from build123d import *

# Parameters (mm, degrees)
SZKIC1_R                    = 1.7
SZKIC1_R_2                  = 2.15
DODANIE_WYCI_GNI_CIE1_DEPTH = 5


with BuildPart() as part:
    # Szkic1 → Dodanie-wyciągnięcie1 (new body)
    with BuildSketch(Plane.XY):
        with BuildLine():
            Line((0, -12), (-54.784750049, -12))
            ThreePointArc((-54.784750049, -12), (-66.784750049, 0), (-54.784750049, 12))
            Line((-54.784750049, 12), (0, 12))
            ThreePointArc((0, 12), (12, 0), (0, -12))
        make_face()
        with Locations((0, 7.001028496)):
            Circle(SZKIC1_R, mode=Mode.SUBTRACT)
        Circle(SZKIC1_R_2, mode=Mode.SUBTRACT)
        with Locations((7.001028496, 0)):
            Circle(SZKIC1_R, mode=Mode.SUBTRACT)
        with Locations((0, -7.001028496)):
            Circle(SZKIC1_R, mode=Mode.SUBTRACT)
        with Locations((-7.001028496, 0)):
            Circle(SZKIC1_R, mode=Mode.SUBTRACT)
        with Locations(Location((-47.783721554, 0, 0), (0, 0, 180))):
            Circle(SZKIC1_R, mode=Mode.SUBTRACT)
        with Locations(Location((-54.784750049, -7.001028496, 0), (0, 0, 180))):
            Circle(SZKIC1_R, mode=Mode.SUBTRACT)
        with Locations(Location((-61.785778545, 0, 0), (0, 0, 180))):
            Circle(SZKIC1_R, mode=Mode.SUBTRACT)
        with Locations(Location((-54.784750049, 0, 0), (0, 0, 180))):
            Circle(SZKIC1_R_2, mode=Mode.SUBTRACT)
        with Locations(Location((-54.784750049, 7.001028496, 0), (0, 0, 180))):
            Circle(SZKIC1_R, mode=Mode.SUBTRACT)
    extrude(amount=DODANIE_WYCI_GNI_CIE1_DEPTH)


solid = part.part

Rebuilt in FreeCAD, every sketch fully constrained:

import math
import FreeCAD as App
import Part
import Sketcher
from FreeCAD import Vector
Q = App.Units.Quantity

doc = App.newDocument("Part")
params = doc.addObject("Spreadsheet::Sheet", "Params")
for row, (alias, value) in enumerate([
    ("sketch1_radius", "12 mm"),
    ("sketch1_diameter", "3.4 mm"),
    ("sketch1_diameter2", "4.3 mm"),
    ("pad1_length", "5 mm"),
], start=1):
    params.set(f"A{row}", alias)
    params.set(f"B{row}", "=" + value)
    params.setAlias(f"B{row}", alias)

body = doc.addObject("PartDesign::Body", "Body")

sketch1 = doc.addObject("Sketcher::SketchObject", "Sketch")
body.addObject(sketch1)
sketch1.AttachmentSupport = (doc.XY_Plane, [""])
sketch1.MapMode = "FlatFace"
sketch1.addGeometry(Part.LineSegment(Vector(-54.8, -12, 0), Vector(0, -12, 0)), False)
sketch1.addGeometry(Part.ArcOfCircle(Part.Circle(Vector(0, 0, 0), Vector(0, 0, 1), 12), math.radians(-90), math.radians(90)), False)
sketch1.addGeometry(Part.LineSegment(Vector(0, 12, 0), Vector(-54.8, 12, 0)), False)
sketch1.addGeometry(Part.ArcOfCircle(Part.Circle(Vector(-54.8, 0, 0), Vector(0, 0, 1), 12), math.radians(90), math.radians(270)), False)
sketch1.addGeometry(Part.Circle(Vector(0, -7, 0), Vector(0, 0, 1), 1.7), False)
sketch1.addGeometry(Part.Circle(Vector(-54.8, -7, 0), Vector(0, 0, 1), 1.7), False)
sketch1.addGeometry(Part.Circle(Vector(7, 0, 0), Vector(0, 0, 1), 1.7), False)
sketch1.addGeometry(Part.Circle(Vector(0, 0, 0), Vector(0, 0, 1), 2.1), False)
sketch1.addGeometry(Part.Circle(Vector(-7, 0, 0), Vector(0, 0, 1), 1.7), False)
sketch1.addGeometry(Part.Circle(Vector(0, 7, 0), Vector(0, 0, 1), 1.7), False)
sketch1.addGeometry(Part.Circle(Vector(-47.8, 0, 0), Vector(0, 0, 1), 1.7), False)
sketch1.addGeometry(Part.Circle(Vector(-54.8, 0, 0), Vector(0, 0, 1), 2.1), False)
sketch1.addGeometry(Part.Circle(Vector(-61.8, 0, 0), Vector(0, 0, 1), 1.7), False)
sketch1.addGeometry(Part.Circle(Vector(-54.8, 7, 0), Vector(0, 0, 1), 1.7), False)
sketch1.addConstraint(Sketcher.Constraint("Tangent", 0, 2, 1, 1))
sketch1.addConstraint(Sketcher.Constraint("Tangent", 1, 2, 2, 1))
sketch1.addConstraint(Sketcher.Constraint("Tangent", 2, 2, 3, 1))
sketch1.addConstraint(Sketcher.Constraint("Tangent", 3, 2, 0, 1))
sketch1.addConstraint(Sketcher.Constraint("Horizontal", 0))
sketch1.addConstraint(Sketcher.Constraint("Horizontal", 2))
sketch1.addConstraint(Sketcher.Constraint("Coincident", 1, 3, -1, 1))
sketch1.addConstraint(Sketcher.Constraint("Coincident", 7, 3, -1, 1))
sketch1.addConstraint(Sketcher.Constraint("Coincident", 11, 3, 3, 3))
sketch1.addConstraint(Sketcher.Constraint("Equal", 4, 5))
sketch1.addConstraint(Sketcher.Constraint("Equal", 5, 6))
sketch1.addConstraint(Sketcher.Constraint("Equal", 6, 8))
sketch1.addConstraint(Sketcher.Constraint("Equal", 8, 9))
sketch1.addConstraint(Sketcher.Constraint("Equal", 9, 10))
sketch1.addConstraint(Sketcher.Constraint("Equal", 7, 11))
sketch1.addConstraint(Sketcher.Constraint("Equal", 10, 12))
sketch1.addConstraint(Sketcher.Constraint("Equal", 12, 13))
sketch1.addConstraint(Sketcher.Constraint("Symmetric", 6, 3, 8, 3, -1, 1))
sketch1.addConstraint(Sketcher.Constraint("Symmetric", 4, 3, 9, 3, -1, 1))
sketch1.addConstraint(Sketcher.Constraint("Symmetric", 5, 3, 13, 3, -1))
sketch1.addConstraint(Sketcher.Constraint("PointOnObject", 4, 3, -2))
sketch1.addConstraint(Sketcher.Constraint("PointOnObject", 6, 3, -1))
sketch1.addConstraint(Sketcher.Constraint("PointOnObject", 10, 3, -1))
sketch1.addConstraint(Sketcher.Constraint("PointOnObject", 12, 3, -1))
sketch1.addConstraint(Sketcher.Constraint("Horizontal", 4, 3, 5, 3))
sketch1.addConstraint(Sketcher.Constraint("Vertical", 3, 3, 5, 3))
sketch1.addConstraint(Sketcher.Constraint("Radius", 1, Q("12 mm")))
sketch1.addConstraint(Sketcher.Constraint("Diameter", 4, Q("3.4 mm")))
sketch1.addConstraint(Sketcher.Constraint("Diameter", 7, Q("4.3 mm")))
sketch1.addConstraint(Sketcher.Constraint("DistanceX", 0, 1, 0, 2, Q("54.78475 mm")))
sketch1.addConstraint(Sketcher.Constraint("DistanceY", 4, 3, -1, 1, Q("7.001028 mm")))
sketch1.addConstraint(Sketcher.Constraint("DistanceX", -1, 1, 6, 3, Q("7.001028 mm")))
sketch1.addConstraint(Sketcher.Constraint("DistanceX", 10, 3, -1, 1, Q("47.783722 mm")))
sketch1.addConstraint(Sketcher.Constraint("DistanceX", 12, 3, -1, 1, Q("61.785779 mm")))
sketch1.setExpression("Constraints[26]", "Params.sketch1_radius")
sketch1.setExpression("Constraints[27]", "Params.sketch1_diameter")
sketch1.setExpression("Constraints[28]", "Params.sketch1_diameter2")
pad1 = doc.addObject("PartDesign::Pad", "Pad")
body.addObject(pad1)
pad1.Profile = sketch1
pad1.setExpression("Length", "Params.pad1_length")

doc.recompute()
